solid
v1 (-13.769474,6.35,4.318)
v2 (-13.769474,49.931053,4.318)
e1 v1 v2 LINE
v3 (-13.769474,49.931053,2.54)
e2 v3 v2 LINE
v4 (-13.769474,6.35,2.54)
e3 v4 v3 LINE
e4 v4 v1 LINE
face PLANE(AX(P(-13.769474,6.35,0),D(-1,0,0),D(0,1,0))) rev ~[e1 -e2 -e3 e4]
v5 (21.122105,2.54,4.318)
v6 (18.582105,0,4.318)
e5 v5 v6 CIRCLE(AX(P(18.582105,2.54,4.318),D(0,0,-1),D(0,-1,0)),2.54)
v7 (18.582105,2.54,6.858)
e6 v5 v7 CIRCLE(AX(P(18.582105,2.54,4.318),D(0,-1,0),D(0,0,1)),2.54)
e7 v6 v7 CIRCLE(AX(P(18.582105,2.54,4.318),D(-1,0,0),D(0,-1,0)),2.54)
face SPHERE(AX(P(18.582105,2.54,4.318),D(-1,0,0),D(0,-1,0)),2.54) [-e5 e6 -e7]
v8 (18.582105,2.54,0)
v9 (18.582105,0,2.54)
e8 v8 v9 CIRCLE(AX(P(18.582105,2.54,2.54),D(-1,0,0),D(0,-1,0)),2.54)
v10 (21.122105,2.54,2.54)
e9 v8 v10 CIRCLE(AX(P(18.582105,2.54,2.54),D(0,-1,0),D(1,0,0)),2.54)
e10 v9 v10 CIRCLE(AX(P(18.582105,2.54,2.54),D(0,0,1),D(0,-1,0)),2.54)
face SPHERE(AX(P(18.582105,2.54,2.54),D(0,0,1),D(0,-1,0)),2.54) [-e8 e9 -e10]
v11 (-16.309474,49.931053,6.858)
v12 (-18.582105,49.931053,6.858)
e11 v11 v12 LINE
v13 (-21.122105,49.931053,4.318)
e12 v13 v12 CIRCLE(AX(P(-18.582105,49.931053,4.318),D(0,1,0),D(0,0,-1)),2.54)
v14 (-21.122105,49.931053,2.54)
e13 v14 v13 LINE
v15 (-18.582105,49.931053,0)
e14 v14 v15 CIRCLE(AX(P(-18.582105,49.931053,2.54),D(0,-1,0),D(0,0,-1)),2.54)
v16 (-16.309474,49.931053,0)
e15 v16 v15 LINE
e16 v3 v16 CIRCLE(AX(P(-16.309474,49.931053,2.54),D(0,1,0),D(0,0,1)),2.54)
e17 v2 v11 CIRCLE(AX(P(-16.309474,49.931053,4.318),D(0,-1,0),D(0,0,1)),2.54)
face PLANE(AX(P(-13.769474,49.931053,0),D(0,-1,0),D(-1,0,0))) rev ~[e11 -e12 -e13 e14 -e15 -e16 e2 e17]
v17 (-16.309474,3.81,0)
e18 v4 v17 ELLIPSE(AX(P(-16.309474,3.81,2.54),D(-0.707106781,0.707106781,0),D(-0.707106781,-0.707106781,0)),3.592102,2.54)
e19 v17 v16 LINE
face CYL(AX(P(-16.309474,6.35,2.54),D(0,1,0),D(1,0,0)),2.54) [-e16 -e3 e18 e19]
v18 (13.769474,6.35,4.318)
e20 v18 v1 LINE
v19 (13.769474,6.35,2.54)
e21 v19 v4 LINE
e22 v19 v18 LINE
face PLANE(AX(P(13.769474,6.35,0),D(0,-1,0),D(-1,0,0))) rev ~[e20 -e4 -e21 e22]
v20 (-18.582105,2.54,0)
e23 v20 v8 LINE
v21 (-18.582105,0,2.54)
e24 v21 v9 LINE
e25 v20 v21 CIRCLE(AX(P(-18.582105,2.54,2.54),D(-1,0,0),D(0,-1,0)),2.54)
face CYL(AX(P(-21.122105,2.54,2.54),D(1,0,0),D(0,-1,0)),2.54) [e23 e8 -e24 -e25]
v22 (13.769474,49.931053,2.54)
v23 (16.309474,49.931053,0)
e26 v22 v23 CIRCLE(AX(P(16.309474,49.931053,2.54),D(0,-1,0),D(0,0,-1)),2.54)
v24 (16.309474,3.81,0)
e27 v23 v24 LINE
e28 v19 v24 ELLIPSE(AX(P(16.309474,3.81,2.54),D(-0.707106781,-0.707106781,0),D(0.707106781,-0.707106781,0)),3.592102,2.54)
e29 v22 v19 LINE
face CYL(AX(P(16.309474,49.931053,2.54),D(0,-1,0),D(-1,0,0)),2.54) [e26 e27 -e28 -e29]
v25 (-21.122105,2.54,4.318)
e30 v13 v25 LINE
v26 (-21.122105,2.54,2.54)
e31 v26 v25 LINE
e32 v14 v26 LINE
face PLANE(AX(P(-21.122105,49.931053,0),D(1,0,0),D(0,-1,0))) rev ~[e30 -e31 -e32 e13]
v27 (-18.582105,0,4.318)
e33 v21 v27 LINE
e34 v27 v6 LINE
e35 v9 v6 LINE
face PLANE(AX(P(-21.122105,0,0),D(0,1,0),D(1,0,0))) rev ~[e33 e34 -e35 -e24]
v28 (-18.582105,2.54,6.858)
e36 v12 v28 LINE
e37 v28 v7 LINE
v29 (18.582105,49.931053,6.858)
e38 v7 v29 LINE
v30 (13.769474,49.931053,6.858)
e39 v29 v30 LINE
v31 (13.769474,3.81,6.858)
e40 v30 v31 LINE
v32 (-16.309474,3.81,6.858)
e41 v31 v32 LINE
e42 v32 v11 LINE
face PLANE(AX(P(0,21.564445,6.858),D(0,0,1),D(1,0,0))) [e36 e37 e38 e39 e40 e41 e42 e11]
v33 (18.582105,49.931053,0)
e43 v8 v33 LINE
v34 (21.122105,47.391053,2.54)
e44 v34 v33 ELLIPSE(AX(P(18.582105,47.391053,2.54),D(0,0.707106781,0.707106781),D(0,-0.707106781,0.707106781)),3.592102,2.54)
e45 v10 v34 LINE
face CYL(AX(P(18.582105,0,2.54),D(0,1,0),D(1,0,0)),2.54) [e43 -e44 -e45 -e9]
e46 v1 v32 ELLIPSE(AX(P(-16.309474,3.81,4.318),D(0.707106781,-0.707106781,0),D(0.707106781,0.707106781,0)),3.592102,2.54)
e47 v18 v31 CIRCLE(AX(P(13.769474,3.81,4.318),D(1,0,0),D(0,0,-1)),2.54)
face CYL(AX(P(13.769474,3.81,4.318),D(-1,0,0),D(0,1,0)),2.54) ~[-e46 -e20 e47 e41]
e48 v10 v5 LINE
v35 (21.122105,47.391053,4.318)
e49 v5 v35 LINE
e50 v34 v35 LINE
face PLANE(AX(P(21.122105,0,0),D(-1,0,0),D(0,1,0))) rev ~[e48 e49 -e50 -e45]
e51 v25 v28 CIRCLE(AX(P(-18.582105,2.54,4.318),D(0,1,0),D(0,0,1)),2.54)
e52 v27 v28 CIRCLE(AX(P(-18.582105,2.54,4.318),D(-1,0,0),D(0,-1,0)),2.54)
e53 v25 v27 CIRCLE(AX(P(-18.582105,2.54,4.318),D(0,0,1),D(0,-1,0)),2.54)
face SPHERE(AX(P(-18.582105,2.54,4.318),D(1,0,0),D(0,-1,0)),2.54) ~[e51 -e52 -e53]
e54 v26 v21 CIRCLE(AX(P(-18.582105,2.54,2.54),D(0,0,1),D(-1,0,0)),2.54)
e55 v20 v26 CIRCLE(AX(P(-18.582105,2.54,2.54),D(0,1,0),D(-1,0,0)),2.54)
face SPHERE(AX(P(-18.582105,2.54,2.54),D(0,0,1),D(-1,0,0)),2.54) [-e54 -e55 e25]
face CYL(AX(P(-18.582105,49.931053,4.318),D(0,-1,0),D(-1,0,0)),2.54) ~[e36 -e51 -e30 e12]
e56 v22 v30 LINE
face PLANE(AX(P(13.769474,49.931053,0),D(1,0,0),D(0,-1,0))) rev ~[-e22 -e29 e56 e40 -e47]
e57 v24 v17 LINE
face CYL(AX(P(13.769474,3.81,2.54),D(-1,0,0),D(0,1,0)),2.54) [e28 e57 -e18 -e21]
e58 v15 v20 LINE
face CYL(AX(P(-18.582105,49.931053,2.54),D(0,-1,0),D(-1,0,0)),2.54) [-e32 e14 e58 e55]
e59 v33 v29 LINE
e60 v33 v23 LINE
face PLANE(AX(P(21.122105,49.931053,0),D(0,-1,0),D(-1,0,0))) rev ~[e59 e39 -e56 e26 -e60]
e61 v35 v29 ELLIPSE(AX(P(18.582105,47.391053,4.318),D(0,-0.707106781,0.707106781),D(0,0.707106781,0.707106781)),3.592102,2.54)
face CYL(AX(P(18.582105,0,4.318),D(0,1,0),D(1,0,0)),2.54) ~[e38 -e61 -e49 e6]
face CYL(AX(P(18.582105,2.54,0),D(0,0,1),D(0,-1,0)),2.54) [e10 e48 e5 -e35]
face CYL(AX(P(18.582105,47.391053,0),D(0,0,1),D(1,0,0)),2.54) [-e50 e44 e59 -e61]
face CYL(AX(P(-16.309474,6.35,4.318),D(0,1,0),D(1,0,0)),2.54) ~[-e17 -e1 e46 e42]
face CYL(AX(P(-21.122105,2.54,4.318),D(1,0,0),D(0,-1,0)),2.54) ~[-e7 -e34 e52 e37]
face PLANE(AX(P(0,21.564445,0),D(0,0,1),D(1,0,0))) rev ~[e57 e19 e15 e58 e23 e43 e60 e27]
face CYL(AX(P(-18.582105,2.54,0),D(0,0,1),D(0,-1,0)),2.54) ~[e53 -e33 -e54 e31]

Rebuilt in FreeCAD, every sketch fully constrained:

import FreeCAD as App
import Part
import Sketcher
from FreeCAD import Vector
Q = App.Units.Quantity


def edges_at(feature, points):
    """Names of the edges that pass closest to the given points."""
    edges = feature.Shape.Edges
    near = lambda p: min(range(len(edges)), key=lambda i: edges[i].distToShape(Part.Vertex(*p))[0])
    return sorted({f"Edge{near(p) + 1}" for p in points})

doc = App.newDocument("Part")
params = doc.addObject("Spreadsheet::Sheet", "Params")
for row, (alias, value) in enumerate([
    ("pad1_length", "0.27 in"),
    ("fillet_radius", "0.1 in"),
    ("pad2_length", "0.539 in"),
], start=1):
    params.set(f"A{row}", alias)
    params.set(f"B{row}", "=" + value)
    params.setAlias(f"B{row}", alias)

body = doc.addObject("PartDesign::Body", "Body")

# Sketch on XY plane
sketch1 = body.newObject("Sketcher::SketchObject", "Sketch")
sketch1.AttachmentSupport = (doc.getObject("XY_Plane"), [""])
sketch1.MapMode = "FlatFace"
sketch1.addGeometry([
    Part.LineSegment(Vector(-21, 0, 0), Vector(21, 0, 0)),  # 0
    Part.LineSegment(Vector(21, 0, 0), Vector(21, 50, 0)),  # 1
    Part.LineSegment(Vector(21, 50, 0), Vector(14, 50, 0)),  # 2
    Part.LineSegment(Vector(14, 50, 0), Vector(14, 6, 0)),  # 3
    Part.LineSegment(Vector(14, 6, 0), Vector(-14, 6, 0)),  # 4
    Part.LineSegment(Vector(-14, 6, 0), Vector(-14, 50, 0)),  # 5
    Part.LineSegment(Vector(-14, 50, 0), Vector(-21, 50, 0)),  # 6
    Part.LineSegment(Vector(-21, 50, 0), Vector(-21, 0, 0)),  # 7
], False)
sketch1.addConstraint([
    Sketcher.Constraint("Coincident", 0, 2, 1, 1),
    Sketcher.Constraint("Coincident", 1, 2, 2, 1),
    Sketcher.Constraint("Coincident", 2, 2, 3, 1),
    Sketcher.Constraint("Coincident", 3, 2, 4, 1),
    Sketcher.Constraint("Coincident", 4, 2, 5, 1),
    Sketcher.Constraint("Coincident", 5, 2, 6, 1),
    Sketcher.Constraint("Coincident", 6, 2, 7, 1),
    Sketcher.Constraint("Coincident", 7, 2, 0, 1),
    Sketcher.Constraint("Horizontal", 0),
    Sketcher.Constraint("Vertical", 1),
    Sketcher.Constraint("Horizontal", 2),
    Sketcher.Constraint("Vertical", 3),
    Sketcher.Constraint("Horizontal", 4),
    Sketcher.Constraint("Vertical", 5),
    Sketcher.Constraint("Horizontal", 6),
    Sketcher.Constraint("Vertical", 7),
    Sketcher.Constraint("Symmetric", 0, 2, 7, 2, -1, 1),
    Sketcher.Constraint("Symmetric", 2, 2, 5, 2, -2),
    Sketcher.Constraint("DistanceY", -1, 1, 3, 2, Q("0.25 in")),
    Sketcher.Constraint("DistanceX", 0, 1, 0, 2, 42.24421),
    Sketcher.Constraint("DistanceX", 2, 2, 2, 1, 7.352631),
    Sketcher.Constraint("DistanceY", 1, 1, 1, 2, 49.931053),
])
pad1 = body.newObject("PartDesign::Pad", "Pad")
pad1.Profile = sketch1
pad1.setExpression("Length", "Params.pad1_length")
doc.recompute()

fillet = body.newObject("PartDesign::Fillet", "Fillet")
fillet.Base = (pad1, edges_at(pad1, [
    (13.769, 28.141, 0),
    (0, 6.35, 0),
    (-13.769, 28.141, 0),
    (0, 0, 6.858),
    (21.122, 0, 3.429),
    (21.122, 49.931, 3.429),
    (21.122, 24.966, 6.858),
    (-21.122, 0, 3.429),
    (-21.122, 24.966, 0),
    (-21.122, 24.966, 6.858),
    (0, 0, 0),
    (21.122, 24.966, 0),
    (-13.769, 28.141, 6.858),
    (0, 6.35, 6.858),
]))
fillet.setExpression("Radius", "Params.fillet_radius")

# Sketch on XZ plane
sketch2 = body.newObject("Sketcher::SketchObject", "Sketch001")
sketch2.AttachmentSupport = (doc.getObject("XZ_Plane"), [""])
sketch2.MapMode = "FlatFace"
sketch2.AttachmentOffset = App.Placement(Vector(0, 0, -49.931053), App.Rotation())
sketch2.addGeometry(Part.Circle(Vector(-17.6, 3.7, 0), Vector(0, 0, 1), 1.7), False)
sketch2.addConstraint([
    Sketcher.Constraint("Diameter", 0, 3.447396),
    Sketcher.Constraint("DistanceX", 0, 3, -1, 1, 17.637752),
    Sketcher.Constraint("DistanceY", -1, 1, 0, 3, 3.690227),
])
pad2 = body.newObject("PartDesign::Pad", "Pad001")
pad2.Profile = sketch2
pad2.setExpression("Length", "Params.pad2_length")

doc.recompute()
